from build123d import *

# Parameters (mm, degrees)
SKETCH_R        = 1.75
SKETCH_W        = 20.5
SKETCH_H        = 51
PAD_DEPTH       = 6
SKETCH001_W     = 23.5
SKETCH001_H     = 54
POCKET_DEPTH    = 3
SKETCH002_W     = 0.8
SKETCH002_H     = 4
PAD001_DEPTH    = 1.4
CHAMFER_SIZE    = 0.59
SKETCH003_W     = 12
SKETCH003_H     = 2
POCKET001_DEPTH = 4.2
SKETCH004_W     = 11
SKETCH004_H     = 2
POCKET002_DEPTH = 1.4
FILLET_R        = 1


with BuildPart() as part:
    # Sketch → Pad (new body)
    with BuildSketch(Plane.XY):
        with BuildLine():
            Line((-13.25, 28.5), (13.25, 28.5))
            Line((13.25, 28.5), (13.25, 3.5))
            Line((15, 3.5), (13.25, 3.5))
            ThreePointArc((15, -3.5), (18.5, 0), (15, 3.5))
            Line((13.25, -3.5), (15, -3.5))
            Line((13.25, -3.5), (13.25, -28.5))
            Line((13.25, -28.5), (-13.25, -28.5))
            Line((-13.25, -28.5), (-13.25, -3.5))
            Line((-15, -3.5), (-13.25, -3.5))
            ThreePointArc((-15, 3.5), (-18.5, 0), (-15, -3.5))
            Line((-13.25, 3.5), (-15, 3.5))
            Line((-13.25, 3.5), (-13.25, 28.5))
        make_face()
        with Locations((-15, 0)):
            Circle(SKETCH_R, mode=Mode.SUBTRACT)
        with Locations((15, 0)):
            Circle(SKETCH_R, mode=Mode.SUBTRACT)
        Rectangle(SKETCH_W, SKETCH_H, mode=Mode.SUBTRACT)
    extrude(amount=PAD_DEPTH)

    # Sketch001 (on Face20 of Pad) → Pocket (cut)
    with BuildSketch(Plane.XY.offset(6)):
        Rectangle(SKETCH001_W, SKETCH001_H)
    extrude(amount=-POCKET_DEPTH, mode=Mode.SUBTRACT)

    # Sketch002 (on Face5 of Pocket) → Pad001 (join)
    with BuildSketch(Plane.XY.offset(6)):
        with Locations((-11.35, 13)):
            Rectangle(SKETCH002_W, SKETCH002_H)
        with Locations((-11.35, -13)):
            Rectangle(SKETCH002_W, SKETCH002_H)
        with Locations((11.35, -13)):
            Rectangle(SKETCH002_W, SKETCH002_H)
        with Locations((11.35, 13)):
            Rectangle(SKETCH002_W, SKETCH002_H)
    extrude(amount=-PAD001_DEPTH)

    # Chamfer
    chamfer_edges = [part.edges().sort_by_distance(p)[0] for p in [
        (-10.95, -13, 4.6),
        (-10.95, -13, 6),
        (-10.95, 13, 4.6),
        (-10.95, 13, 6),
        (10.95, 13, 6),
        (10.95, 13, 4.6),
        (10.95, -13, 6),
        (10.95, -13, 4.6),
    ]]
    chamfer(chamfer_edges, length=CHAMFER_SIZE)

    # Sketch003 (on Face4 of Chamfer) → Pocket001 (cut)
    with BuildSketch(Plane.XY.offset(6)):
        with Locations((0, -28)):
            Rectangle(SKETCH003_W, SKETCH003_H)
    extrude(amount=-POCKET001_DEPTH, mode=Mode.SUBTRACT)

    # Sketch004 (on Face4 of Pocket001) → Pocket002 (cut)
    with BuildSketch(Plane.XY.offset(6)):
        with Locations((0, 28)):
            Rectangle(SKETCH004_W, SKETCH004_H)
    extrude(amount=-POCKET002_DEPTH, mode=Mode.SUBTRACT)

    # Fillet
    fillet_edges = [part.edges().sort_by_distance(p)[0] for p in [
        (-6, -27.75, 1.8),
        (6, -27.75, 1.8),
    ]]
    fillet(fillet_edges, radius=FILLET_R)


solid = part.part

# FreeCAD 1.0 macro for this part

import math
import FreeCAD as App
import Part
import Sketcher
Q = App.Units.Quantity


def edges_at(feature, points):
    """Names of the edges that pass closest to the given points."""
    edges = feature.Shape.Edges
    near = lambda p: min(range(len(edges)), key=lambda i: edges[i].distToShape(Part.Vertex(*p))[0])
    return sorted({f"Edge{near(p) + 1}" for p in points})


def add_polygon(sketch, points):
    """Adds a closed chain of lines whose ends are joined by coincident constraints."""
    first, n = sketch.GeometryCount, len(points)
    for a, b in zip(points, points[1:] + points[:1]):
        sketch.addGeometry(Part.LineSegment(App.Vector(*a, 0), App.Vector(*b, 0)), False)
    for i in range(n):
        sketch.addConstraint(Sketcher.Constraint("Coincident", first + i, 2, first + (i + 1) % n, 1))

doc = App.newDocument("Part")
body = doc.addObject("PartDesign::Body", "Body")

sketch1 = body.newObject("Sketcher::SketchObject", "Sketch")
sketch1.AttachmentSupport = (doc.getObject("XY_Plane"), [""])
sketch1.MapMode = "FlatFace"
sketch1.addGeometry(Part.LineSegment(App.Vector(13.25, 28.5, 0), App.Vector(-13.25, 28.5, 0)), False)
sketch1.addGeometry(Part.LineSegment(App.Vector(-13.25, 28.5, 0), App.Vector(-13.25, 3.5, 0)), False)
sketch1.addGeometry(Part.LineSegment(App.Vector(-13.25, 3.5, 0), App.Vector(-15, 3.5, 0)), False)
sketch1.addGeometry(Part.ArcOfCircle(Part.Circle(App.Vector(-15, 0, 0), App.Vector(0, 0, 1), 3.5), math.radians(90), math.radians(270)), False)
sketch1.addGeometry(Part.LineSegment(App.Vector(-15, -3.5, 0), App.Vector(-13.25, -3.5, 0)), False)
sketch1.addGeometry(Part.LineSegment(App.Vector(-13.25, -3.5, 0), App.Vector(-13.25, -28.5, 0)), False)
sketch1.addGeometry(Part.LineSegment(App.Vector(-13.25, -28.5, 0), App.Vector(13.25, -28.5, 0)), False)
sketch1.addGeometry(Part.LineSegment(App.Vector(13.25, -28.5, 0), App.Vector(13.25, -3.5, 0)), False)
sketch1.addGeometry(Part.LineSegment(App.Vector(13.25, -3.5, 0), App.Vector(15, -3.5, 0)), False)
sketch1.addGeometry(Part.ArcOfCircle(Part.Circle(App.Vector(15, 0, 0), App.Vector(0, 0, 1), 3.5), math.radians(-90), math.radians(90)), False)
sketch1.addGeometry(Part.LineSegment(App.Vector(15, 3.5, 0), App.Vector(13.25, 3.5, 0)), False)
sketch1.addGeometry(Part.LineSegment(App.Vector(13.25, 3.5, 0), App.Vector(13.25, 28.5, 0)), False)
sketch1.addGeometry(Part.Circle(App.Vector(15, 0, 0), App.Vector(0, 0, 1), 1.75), False)
add_polygon(sketch1, [(-10.25, -25.5), (-10.25, 25.5), (10.25, 25.5), (10.25, -25.5)])
sketch1.addGeometry(Part.Circle(App.Vector(-15, 0, 0), App.Vector(0, 0, 1), 1.75), False)
sketch1.addConstraint(Sketcher.Constraint("Coincident", 0, 2, 1, 1))
sketch1.addConstraint(Sketcher.Constraint("Coincident", 1, 2, 2, 1))
sketch1.addConstraint(Sketcher.Constraint("Tangent", 2, 2, 3, 1))
sketch1.addConstraint(Sketcher.Constraint("Tangent", 3, 2, 4, 1))
sketch1.addConstraint(Sketcher.Constraint("Coincident", 4, 2, 5, 1))
sketch1.addConstraint(Sketcher.Constraint("Coincident", 5, 2, 6, 1))
sketch1.addConstraint(Sketcher.Constraint("Coincident", 6, 2, 7, 1))
sketch1.addConstraint(Sketcher.Constraint("Coincident", 7, 2, 8, 1))
sketch1.addConstraint(Sketcher.Constraint("Tangent", 8, 2, 9, 1))
sketch1.addConstraint(Sketcher.Constraint("Tangent", 9, 2, 10, 1))
sketch1.addConstraint(Sketcher.Constraint("Coincident", 10, 2, 11, 1))
sketch1.addConstraint(Sketcher.Constraint("Coincident", 11, 2, 0, 1))
sketch1.addConstraint(Sketcher.Constraint("Horizontal", 0))
sketch1.addConstraint(Sketcher.Constraint("Vertical", 1))
sketch1.addConstraint(Sketcher.Constraint("Horizontal", 2))
sketch1.addConstraint(Sketcher.Constraint("Horizontal", 4))
sketch1.addConstraint(Sketcher.Constraint("Vertical", 5))
sketch1.addConstraint(Sketcher.Constraint("Horizontal", 6))
sketch1.addConstraint(Sketcher.Constraint("Vertical", 7))
sketch1.addConstraint(Sketcher.Constraint("Horizontal", 8))
sketch1.addConstraint(Sketcher.Constraint("Horizontal", 10))
sketch1.addConstraint(Sketcher.Constraint("Vertical", 11))
sketch1.addConstraint(Sketcher.Constraint("Vertical", 13))
sketch1.addConstraint(Sketcher.Constraint("Horizontal", 14))
sketch1.addConstraint(Sketcher.Constraint("Vertical", 15))
sketch1.addConstraint(Sketcher.Constraint("Horizontal", 16))
sketch1.addConstraint(Sketcher.Constraint("Coincident", 12, 3, 9, 3))
sketch1.addConstraint(Sketcher.Constraint("Coincident", 17, 3, 3, 3))
sketch1.addConstraint(Sketcher.Constraint("Equal", 3, 9))
sketch1.addConstraint(Sketcher.Constraint("Equal", 12, 17))
sketch1.addConstraint(Sketcher.Constraint("Symmetric", 3, 3, 9, 3, -1, 1))
sketch1.addConstraint(Sketcher.Constraint("Symmetric", 0, 2, 6, 2, -1, 1))
sketch1.addConstraint(Sketcher.Constraint("Symmetric", 13, 2, 15, 2, -1, 1))
sketch1.addConstraint(Sketcher.Constraint("Symmetric", 4, 2, 7, 2, -2))
sketch1.addConstraint(Sketcher.Constraint("Vertical", 7, 2, 10, 2))
sketch1.addConstraint(Sketcher.Constraint("Diameter", 12, Q("3.5 mm")))
sketch1.addConstraint(Sketcher.Constraint("Radius", 3, Q("3.5 mm")))
sketch1.addConstraint(Sketcher.Constraint("DistanceY", 1, 2, 1, 1, Q("25 mm")))
sketch1.addConstraint(Sketcher.Constraint("DistanceY", 13, 1, 13, 2, Q("51 mm")))
sketch1.addConstraint(Sketcher.Constraint("DistanceX", 0, 2, 0, 1, Q("26.5 mm")))
sketch1.addConstraint(Sketcher.Constraint("DistanceX", 14, 1, 14, 2, Q("20.5 mm")))
sketch1.addConstraint(Sketcher.Constraint("DistanceX", 3, 3, -1, 1, Q("15 mm")))
pad1 = body.newObject("PartDesign::Pad", "Pad")
pad1.Profile = sketch1
pad1.Length = 6

sketch2 = body.newObject("Sketcher::SketchObject", "Sketch001")
sketch2.AttachmentSupport = (doc.getObject("XY_Plane"), [""])
sketch2.MapMode = "FlatFace"
sketch2.AttachmentOffset = App.Placement(App.Vector(0, 0, 6), App.Rotation())
add_polygon(sketch2, [(-11.75, 27), (-11.75, -27), (11.75, -27), (11.75, 27)])
sketch2.addConstraint(Sketcher.Constraint("Vertical", 0))
sketch2.addConstraint(Sketcher.Constraint("Horizontal", 1))
sketch2.addConstraint(Sketcher.Constraint("Vertical", 2))
sketch2.addConstraint(Sketcher.Constraint("Horizontal", 3))
sketch2.addConstraint(Sketcher.Constraint("Symmetric", 0, 2, 2, 2, -1, 1))
sketch2.addConstraint(Sketcher.Constraint("DistanceY", 0, 2, 0, 1, Q("54 mm")))
sketch2.addConstraint(Sketcher.Constraint("DistanceX", 1, 1, 1, 2, Q("23.5 mm")))
pocket1 = body.newObject("PartDesign::Pocket", "Pocket")
pocket1.Profile = sketch2
pocket1.Length = 3

sketch3 = body.newObject("Sketcher::SketchObject", "Sketch002")
sketch3.AttachmentSupport = (doc.getObject("XY_Plane"), [""])
sketch3.MapMode = "FlatFace"
sketch3.AttachmentOffset = App.Placement(App.Vector(0, 0, 6), App.Rotation())
add_polygon(sketch3, [(-11.75, 15), (-11.75, 11), (-10.95, 11), (-10.95, 15)])
add_polygon(sketch3, [(-11.75, -11), (-11.75, -15), (-10.95, -15), (-10.95, -11)])
add_polygon(sketch3, [(10.95, -11), (10.95, -15), (11.75, -15), (11.75, -11)])
add_polygon(sketch3, [(10.95, 15), (10.95, 11), (11.75, 11), (11.75, 15)])
sketch3.addConstraint(Sketcher.Constraint("Vertical", 0))
sketch3.addConstraint(Sketcher.Constraint("Horizontal", 1))
sketch3.addConstraint(Sketcher.Constraint("Vertical", 2))
sketch3.addConstraint(Sketcher.Constraint("Horizontal", 3))
sketch3.addConstraint(Sketcher.Constraint("Vertical", 4))
sketch3.addConstraint(Sketcher.Constraint("Horizontal", 5))
sketch3.addConstraint(Sketcher.Constraint("Vertical", 6))
sketch3.addConstraint(Sketcher.Constraint("Horizontal", 7))
sketch3.addConstraint(Sketcher.Constraint("Vertical", 8))
sketch3.addConstraint(Sketcher.Constraint("Horizontal", 9))
sketch3.addConstraint(Sketcher.Constraint("Vertical", 10))
sketch3.addConstraint(Sketcher.Constraint("Horizontal", 11))
sketch3.addConstraint(Sketcher.Constraint("Vertical", 12))
sketch3.addConstraint(Sketcher.Constraint("Horizontal", 13))
sketch3.addConstraint(Sketcher.Constraint("Vertical", 14))
sketch3.addConstraint(Sketcher.Constraint("Horizontal", 15))
sketch3.addConstraint(Sketcher.Constraint("Symmetric", 2, 2, 8, 2, -1, 1))
sketch3.addConstraint(Sketcher.Constraint("Symmetric", 0, 2, 10, 2, -1, 1))
sketch3.addConstraint(Sketcher.Constraint("Symmetric", 6, 2, 12, 2, -1, 1))
sketch3.addConstraint(Sketcher.Constraint("Symmetric", 4, 2, 14, 2, -1, 1))
sketch3.addConstraint(Sketcher.Constraint("Symmetric", 5, 2, 8, 2, -2))
sketch3.addConstraint(Sketcher.Constraint("Symmetric", 7, 2, 10, 2, -2))
sketch3.addConstraint(Sketcher.Constraint("DistanceY", 0, 2, 0, 1, Q("4 mm")))
sketch3.addConstraint(Sketcher.Constraint("DistanceX", 1, 1, 1, 2, Q("0.8 mm")))
sketch3.addConstraint(Sketcher.Constraint("DistanceY", -1, 1, 0, 2, Q("11 mm")))
sketch3.addConstraint(Sketcher.Constraint("DistanceX", 5, 2, 8, 2, Q("21.9 mm")))
pad2 = body.newObject("PartDesign::Pad", "Pad001")
pad2.Profile = sketch3
pad2.Length = 1.4
pad2.Reversed = True
doc.recompute()

chamfer = body.newObject("PartDesign::Chamfer", "Chamfer")
chamfer.Base = (pad2, edges_at(pad2, [
    (-10.95, -13, 4.6),
    (-10.95, -13, 6),
    (-10.95, 13, 4.6),
    (-10.95, 13, 6),
    (10.95, 13, 6),
    (10.95, 13, 4.6),
    (10.95, -13, 6),
    (10.95, -13, 4.6),
]))
chamfer.Size = 0.59

sketch4 = body.newObject("Sketcher::SketchObject", "Sketch003")
sketch4.AttachmentSupport = (doc.getObject("XY_Plane"), [""])
sketch4.MapMode = "FlatFace"
sketch4.AttachmentOffset = App.Placement(App.Vector(0, 0, 6), App.Rotation())
add_polygon(sketch4, [(-6, -27), (-6, -29), (6, -29), (6, -27)])
sketch4.addConstraint(Sketcher.Constraint("Vertical", 0))
sketch4.addConstraint(Sketcher.Constraint("Horizontal", 1))
sketch4.addConstraint(Sketcher.Constraint("Vertical", 2))
sketch4.addConstraint(Sketcher.Constraint("Horizontal", 3))
sketch4.addConstraint(Sketcher.Constraint("DistanceX", 1, 1, 1, 2, Q("12 mm")))
sketch4.addConstraint(Sketcher.Constraint("DistanceY", 0, 2, 0, 1, Q("2 mm")))
sketch4.addConstraint(Sketcher.Constraint("DistanceX", 0, 2, -1, 1, Q("6 mm")))
sketch4.addConstraint(Sketcher.Constraint("DistanceY", 0, 2, -1, 1, Q("29 mm")))
pocket2 = body.newObject("PartDesign::Pocket", "Pocket001")
pocket2.Profile = sketch4
pocket2.Length = 4.2

sketch5 = body.newObject("Sketcher::SketchObject", "Sketch004")
sketch5.AttachmentSupport = (doc.getObject("XY_Plane"), [""])
sketch5.MapMode = "FlatFace"
sketch5.AttachmentOffset = App.Placement(App.Vector(0, 0, 6), App.Rotation())
add_polygon(sketch5, [(-5.5, 29), (-5.5, 27), (5.5, 27), (5.5, 29)])
sketch5.addConstraint(Sketcher.Constraint("Vertical", 0))
sketch5.addConstraint(Sketcher.Constraint("Horizontal", 1))
sketch5.addConstraint(Sketcher.Constraint("Vertical", 2))
sketch5.addConstraint(Sketcher.Constraint("Horizontal", 3))
sketch5.addConstraint(Sketcher.Constraint("DistanceX", 1, 1, 1, 2, Q("11 mm")))
sketch5.addConstraint(Sketcher.Constraint("DistanceY", 0, 2, 0, 1, Q("2 mm")))
sketch5.addConstraint(Sketcher.Constraint("DistanceY", -1, 1, 0, 2, Q("27 mm")))
sketch5.addConstraint(Sketcher.Constraint("DistanceX", 0, 2, -1, 1, Q("5.5 mm")))
pocket3 = body.newObject("PartDesign::Pocket", "Pocket002")
pocket3.Profile = sketch5
pocket3.Length = 1.4
doc.recompute()

fillet = body.newObject("PartDesign::Fillet", "Fillet")
fillet.Base = (pocket3, edges_at(pocket3, [(-6, -27.75, 1.8), (6, -27.75, 1.8)]))
fillet.Radius = 1

doc.recompute()
